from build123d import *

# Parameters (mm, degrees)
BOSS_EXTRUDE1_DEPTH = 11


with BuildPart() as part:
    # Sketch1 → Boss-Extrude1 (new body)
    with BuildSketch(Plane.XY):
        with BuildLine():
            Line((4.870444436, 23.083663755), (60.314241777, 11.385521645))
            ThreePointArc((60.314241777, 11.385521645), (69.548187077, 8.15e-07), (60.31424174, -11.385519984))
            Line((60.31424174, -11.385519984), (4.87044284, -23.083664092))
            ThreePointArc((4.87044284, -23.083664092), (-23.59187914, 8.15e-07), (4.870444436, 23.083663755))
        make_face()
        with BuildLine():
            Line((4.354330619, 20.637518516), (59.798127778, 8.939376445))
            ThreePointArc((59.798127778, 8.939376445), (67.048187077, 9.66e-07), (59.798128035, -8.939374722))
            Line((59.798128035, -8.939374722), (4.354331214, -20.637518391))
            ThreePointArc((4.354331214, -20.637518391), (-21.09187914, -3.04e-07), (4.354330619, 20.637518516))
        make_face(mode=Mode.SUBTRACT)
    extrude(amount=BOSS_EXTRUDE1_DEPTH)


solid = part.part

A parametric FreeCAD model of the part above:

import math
import FreeCAD as App
import Part
import Sketcher
from FreeCAD import Vector
Q = App.Units.Quantity

doc = App.newDocument("Part")
params = doc.addObject("Spreadsheet::Sheet", "Params")
for row, (alias, value) in enumerate([
    ("pad1_length", "11 mm"),
], start=1):
    params.set(f"A{row}", alias)
    params.set(f"B{row}", "=" + value)
    params.setAlias(f"B{row}", alias)

body = doc.addObject("PartDesign::Body", "Body")

# Sketch on XY plane
sketch1 = doc.addObject("Sketcher::SketchObject", "Sketch")
body.addObject(sketch1)
sketch1.AttachmentSupport = (doc.XY_Plane, [""])
sketch1.MapMode = "FlatFace"
sketch1.addGeometry([
    Part.LineSegment(Vector(60.314242, 11.385522, 0), Vector(4.870444, 23.083664, 0)),  # 0
    Part.ArcOfCircle(Part.Circle(Vector(0, 0, 0), Vector(0, 0, 1), 23.591879), math.radians(78.085852), math.radians(281.914144)),  # 1
    Part.LineSegment(Vector(4.870443, -23.083664, 0), Vector(60.314242, -11.38552, 0)),  # 2
    Part.ArcOfCircle(Part.Circle(Vector(57.912, 0.000001, 0), Vector(0, 0, 1), 11.636187), math.radians(-78.085853), math.radians(78.085853)),  # 3
    Part.LineSegment(Vector(4.354331, 20.637519, 0), Vector(59.798128, 8.939376, 0)),  # 4
    Part.ArcOfCircle(Part.Circle(Vector(57.912, 0.000001, 0), Vector(0, 0, 1), 9.136187), math.radians(-78.085848), math.radians(78.08585)),  # 5
    Part.LineSegment(Vector(59.798128, -8.939375, 0), Vector(4.354331, -20.637518, 0)),  # 6
    Part.ArcOfCircle(Part.Circle(Vector(0, 0, 0), Vector(0, 0, 1), 21.091879), math.radians(78.08585), math.radians(281.914152)),  # 7
], False)
sketch1.addConstraint([
    Sketcher.Constraint("Tangent", 0, 2, 1, 1),
    Sketcher.Constraint("Tangent", 1, 2, 2, 1),
    Sketcher.Constraint("Tangent", 2, 2, 3, 1),
    Sketcher.Constraint("Tangent", 3, 2, 0, 1),
    Sketcher.Constraint("Tangent", 4, 2, 5, 2),
    Sketcher.Constraint("Tangent", 5, 1, 6, 1),
    Sketcher.Constraint("Tangent", 6, 2, 7, 2),
    Sketcher.Constraint("Tangent", 7, 1, 4, 1),
    Sketcher.Constraint("Coincident", 1, 3, -1, 1),
    Sketcher.Constraint("Coincident", 7, 3, -1, 1),
    Sketcher.Constraint("Coincident", 5, 3, 3, 3),
    Sketcher.Constraint("PointOnObject", 3, 3, -1),
    Sketcher.Constraint("Parallel", 0, 4),
    Sketcher.Constraint("Radius", 1, Q("23.591879 mm")),
    Sketcher.Constraint("Radius", 7, Q("21.091879 mm")),
    Sketcher.Constraint("DistanceX", -1, 1, 3, 3, Q("57.912 mm")),
    Sketcher.Constraint("Radius", 3, Q("11.636187 mm")),
])
pad1 = doc.addObject("PartDesign::Pad", "Pad")
body.addObject(pad1)
pad1.Profile = sketch1
pad1.setExpression("Length", "Params.pad1_length")

doc.recompute()
